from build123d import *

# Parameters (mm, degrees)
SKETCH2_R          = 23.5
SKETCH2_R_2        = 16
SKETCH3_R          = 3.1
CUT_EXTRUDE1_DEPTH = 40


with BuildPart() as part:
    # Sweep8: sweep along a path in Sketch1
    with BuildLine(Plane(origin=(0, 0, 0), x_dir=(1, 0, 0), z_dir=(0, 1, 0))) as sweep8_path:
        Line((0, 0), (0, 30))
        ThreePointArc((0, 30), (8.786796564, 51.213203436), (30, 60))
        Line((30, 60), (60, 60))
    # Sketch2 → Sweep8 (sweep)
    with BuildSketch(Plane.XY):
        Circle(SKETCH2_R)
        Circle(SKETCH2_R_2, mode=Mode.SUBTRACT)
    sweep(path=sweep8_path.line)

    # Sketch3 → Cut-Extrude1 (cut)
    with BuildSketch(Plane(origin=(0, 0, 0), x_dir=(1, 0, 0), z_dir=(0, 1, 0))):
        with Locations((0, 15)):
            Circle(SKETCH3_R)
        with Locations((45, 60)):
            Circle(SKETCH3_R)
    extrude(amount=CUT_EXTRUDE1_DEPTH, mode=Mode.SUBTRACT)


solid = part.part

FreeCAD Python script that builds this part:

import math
import FreeCAD as App
import Part
import Sketcher

doc = App.newDocument("Part")
body = doc.addObject("PartDesign::Body", "Body")

# Sketch on XY plane
sketch1 = body.newObject("Sketcher::SketchObject", "Sketch")
sketch1.AttachmentSupport = (doc.getObject("XY_Plane"), [""])
sketch1.MapMode = "FlatFace"
sketch1.addGeometry(Part.Circle(App.Vector(0, 0, 0), App.Vector(0, 0, 1), 24), False)
sketch1.addGeometry(Part.Circle(App.Vector(0, 0, 0), App.Vector(0, 0, 1), 16), False)
sketch1.addConstraint(Sketcher.Constraint("Coincident", 0, 3, -1, 1))
sketch1.addConstraint(Sketcher.Constraint("Coincident", 1, 3, -1, 1))
sketch1.addConstraint(Sketcher.Constraint("Diameter", 0, 47.0))
sketch1.addConstraint(Sketcher.Constraint("Diameter", 1, 32.0))

# Sketch on XZ plane
sketch2 = body.newObject("Sketcher::SketchObject", "Sketch001")
sketch2.AttachmentSupport = (doc.getObject("XZ_Plane"), [""])
sketch2.MapMode = "FlatFace"
sketch2.addGeometry(Part.LineSegment(App.Vector(0, 0, 0), App.Vector(0, -30, 0)), False)
sketch2.addGeometry(Part.ArcOfCircle(Part.Circle(App.Vector(30, -30, 0), App.Vector(0, 0, 1), 30), math.radians(180), math.radians(270)), False)
sketch2.addGeometry(Part.LineSegment(App.Vector(30, -60, 0), App.Vector(60, -60, 0)), False)
sketch2.addConstraint(Sketcher.Constraint("Tangent", 0, 2, 1, 1))
sketch2.addConstraint(Sketcher.Constraint("Tangent", 1, 2, 2, 1))
sketch2.addConstraint(Sketcher.Constraint("Vertical", 0))
sketch2.addConstraint(Sketcher.Constraint("Horizontal", 2))
sketch2.addConstraint(Sketcher.Constraint("Coincident", 0, 1, -1, 1))
sketch2.addConstraint(Sketcher.Constraint("Equal", 2, 0))
sketch2.addConstraint(Sketcher.Constraint("Radius", 1, 30.0))
sketch2.addConstraint(Sketcher.Constraint("DistanceX", 2, 1, 2, 2, 30.0))
doc.recompute()

additivepipe = body.newObject("PartDesign::AdditivePipe", "AdditivePipe")
additivepipe.Profile = sketch1
additivepipe.Spine = (sketch2, ["Edge1", "Edge2", "Edge3"])

# Sketch on XZ plane
sketch3 = body.newObject("Sketcher::SketchObject", "Sketch002")
sketch3.AttachmentSupport = (doc.getObject("XZ_Plane"), [""])
sketch3.MapMode = "FlatFace"
sketch3.addGeometry(Part.Circle(App.Vector(0, -15, 0), App.Vector(0, 0, 1), 3.1), False)
sketch3.addGeometry(Part.Circle(App.Vector(45, -60, 0), App.Vector(0, 0, 1), 3.1), False)
sketch3.addConstraint(Sketcher.Constraint("Equal", 0, 1))
sketch3.addConstraint(Sketcher.Constraint("PointOnObject", 0, 3, -2))
sketch3.addConstraint(Sketcher.Constraint("Diameter", 0, 6.2))
sketch3.addConstraint(Sketcher.Constraint("DistanceY", 0, 3, -1, 1, 15.0))
sketch3.addConstraint(Sketcher.Constraint("DistanceX", -1, 1, 1, 3, 45.0))
sketch3.addConstraint(Sketcher.Constraint("DistanceY", 1, 3, -1, 1, 60.0))
pocket1 = body.newObject("PartDesign::Pocket", "Pocket")
pocket1.Profile = sketch3
pocket1.Length = 40

doc.recompute()
